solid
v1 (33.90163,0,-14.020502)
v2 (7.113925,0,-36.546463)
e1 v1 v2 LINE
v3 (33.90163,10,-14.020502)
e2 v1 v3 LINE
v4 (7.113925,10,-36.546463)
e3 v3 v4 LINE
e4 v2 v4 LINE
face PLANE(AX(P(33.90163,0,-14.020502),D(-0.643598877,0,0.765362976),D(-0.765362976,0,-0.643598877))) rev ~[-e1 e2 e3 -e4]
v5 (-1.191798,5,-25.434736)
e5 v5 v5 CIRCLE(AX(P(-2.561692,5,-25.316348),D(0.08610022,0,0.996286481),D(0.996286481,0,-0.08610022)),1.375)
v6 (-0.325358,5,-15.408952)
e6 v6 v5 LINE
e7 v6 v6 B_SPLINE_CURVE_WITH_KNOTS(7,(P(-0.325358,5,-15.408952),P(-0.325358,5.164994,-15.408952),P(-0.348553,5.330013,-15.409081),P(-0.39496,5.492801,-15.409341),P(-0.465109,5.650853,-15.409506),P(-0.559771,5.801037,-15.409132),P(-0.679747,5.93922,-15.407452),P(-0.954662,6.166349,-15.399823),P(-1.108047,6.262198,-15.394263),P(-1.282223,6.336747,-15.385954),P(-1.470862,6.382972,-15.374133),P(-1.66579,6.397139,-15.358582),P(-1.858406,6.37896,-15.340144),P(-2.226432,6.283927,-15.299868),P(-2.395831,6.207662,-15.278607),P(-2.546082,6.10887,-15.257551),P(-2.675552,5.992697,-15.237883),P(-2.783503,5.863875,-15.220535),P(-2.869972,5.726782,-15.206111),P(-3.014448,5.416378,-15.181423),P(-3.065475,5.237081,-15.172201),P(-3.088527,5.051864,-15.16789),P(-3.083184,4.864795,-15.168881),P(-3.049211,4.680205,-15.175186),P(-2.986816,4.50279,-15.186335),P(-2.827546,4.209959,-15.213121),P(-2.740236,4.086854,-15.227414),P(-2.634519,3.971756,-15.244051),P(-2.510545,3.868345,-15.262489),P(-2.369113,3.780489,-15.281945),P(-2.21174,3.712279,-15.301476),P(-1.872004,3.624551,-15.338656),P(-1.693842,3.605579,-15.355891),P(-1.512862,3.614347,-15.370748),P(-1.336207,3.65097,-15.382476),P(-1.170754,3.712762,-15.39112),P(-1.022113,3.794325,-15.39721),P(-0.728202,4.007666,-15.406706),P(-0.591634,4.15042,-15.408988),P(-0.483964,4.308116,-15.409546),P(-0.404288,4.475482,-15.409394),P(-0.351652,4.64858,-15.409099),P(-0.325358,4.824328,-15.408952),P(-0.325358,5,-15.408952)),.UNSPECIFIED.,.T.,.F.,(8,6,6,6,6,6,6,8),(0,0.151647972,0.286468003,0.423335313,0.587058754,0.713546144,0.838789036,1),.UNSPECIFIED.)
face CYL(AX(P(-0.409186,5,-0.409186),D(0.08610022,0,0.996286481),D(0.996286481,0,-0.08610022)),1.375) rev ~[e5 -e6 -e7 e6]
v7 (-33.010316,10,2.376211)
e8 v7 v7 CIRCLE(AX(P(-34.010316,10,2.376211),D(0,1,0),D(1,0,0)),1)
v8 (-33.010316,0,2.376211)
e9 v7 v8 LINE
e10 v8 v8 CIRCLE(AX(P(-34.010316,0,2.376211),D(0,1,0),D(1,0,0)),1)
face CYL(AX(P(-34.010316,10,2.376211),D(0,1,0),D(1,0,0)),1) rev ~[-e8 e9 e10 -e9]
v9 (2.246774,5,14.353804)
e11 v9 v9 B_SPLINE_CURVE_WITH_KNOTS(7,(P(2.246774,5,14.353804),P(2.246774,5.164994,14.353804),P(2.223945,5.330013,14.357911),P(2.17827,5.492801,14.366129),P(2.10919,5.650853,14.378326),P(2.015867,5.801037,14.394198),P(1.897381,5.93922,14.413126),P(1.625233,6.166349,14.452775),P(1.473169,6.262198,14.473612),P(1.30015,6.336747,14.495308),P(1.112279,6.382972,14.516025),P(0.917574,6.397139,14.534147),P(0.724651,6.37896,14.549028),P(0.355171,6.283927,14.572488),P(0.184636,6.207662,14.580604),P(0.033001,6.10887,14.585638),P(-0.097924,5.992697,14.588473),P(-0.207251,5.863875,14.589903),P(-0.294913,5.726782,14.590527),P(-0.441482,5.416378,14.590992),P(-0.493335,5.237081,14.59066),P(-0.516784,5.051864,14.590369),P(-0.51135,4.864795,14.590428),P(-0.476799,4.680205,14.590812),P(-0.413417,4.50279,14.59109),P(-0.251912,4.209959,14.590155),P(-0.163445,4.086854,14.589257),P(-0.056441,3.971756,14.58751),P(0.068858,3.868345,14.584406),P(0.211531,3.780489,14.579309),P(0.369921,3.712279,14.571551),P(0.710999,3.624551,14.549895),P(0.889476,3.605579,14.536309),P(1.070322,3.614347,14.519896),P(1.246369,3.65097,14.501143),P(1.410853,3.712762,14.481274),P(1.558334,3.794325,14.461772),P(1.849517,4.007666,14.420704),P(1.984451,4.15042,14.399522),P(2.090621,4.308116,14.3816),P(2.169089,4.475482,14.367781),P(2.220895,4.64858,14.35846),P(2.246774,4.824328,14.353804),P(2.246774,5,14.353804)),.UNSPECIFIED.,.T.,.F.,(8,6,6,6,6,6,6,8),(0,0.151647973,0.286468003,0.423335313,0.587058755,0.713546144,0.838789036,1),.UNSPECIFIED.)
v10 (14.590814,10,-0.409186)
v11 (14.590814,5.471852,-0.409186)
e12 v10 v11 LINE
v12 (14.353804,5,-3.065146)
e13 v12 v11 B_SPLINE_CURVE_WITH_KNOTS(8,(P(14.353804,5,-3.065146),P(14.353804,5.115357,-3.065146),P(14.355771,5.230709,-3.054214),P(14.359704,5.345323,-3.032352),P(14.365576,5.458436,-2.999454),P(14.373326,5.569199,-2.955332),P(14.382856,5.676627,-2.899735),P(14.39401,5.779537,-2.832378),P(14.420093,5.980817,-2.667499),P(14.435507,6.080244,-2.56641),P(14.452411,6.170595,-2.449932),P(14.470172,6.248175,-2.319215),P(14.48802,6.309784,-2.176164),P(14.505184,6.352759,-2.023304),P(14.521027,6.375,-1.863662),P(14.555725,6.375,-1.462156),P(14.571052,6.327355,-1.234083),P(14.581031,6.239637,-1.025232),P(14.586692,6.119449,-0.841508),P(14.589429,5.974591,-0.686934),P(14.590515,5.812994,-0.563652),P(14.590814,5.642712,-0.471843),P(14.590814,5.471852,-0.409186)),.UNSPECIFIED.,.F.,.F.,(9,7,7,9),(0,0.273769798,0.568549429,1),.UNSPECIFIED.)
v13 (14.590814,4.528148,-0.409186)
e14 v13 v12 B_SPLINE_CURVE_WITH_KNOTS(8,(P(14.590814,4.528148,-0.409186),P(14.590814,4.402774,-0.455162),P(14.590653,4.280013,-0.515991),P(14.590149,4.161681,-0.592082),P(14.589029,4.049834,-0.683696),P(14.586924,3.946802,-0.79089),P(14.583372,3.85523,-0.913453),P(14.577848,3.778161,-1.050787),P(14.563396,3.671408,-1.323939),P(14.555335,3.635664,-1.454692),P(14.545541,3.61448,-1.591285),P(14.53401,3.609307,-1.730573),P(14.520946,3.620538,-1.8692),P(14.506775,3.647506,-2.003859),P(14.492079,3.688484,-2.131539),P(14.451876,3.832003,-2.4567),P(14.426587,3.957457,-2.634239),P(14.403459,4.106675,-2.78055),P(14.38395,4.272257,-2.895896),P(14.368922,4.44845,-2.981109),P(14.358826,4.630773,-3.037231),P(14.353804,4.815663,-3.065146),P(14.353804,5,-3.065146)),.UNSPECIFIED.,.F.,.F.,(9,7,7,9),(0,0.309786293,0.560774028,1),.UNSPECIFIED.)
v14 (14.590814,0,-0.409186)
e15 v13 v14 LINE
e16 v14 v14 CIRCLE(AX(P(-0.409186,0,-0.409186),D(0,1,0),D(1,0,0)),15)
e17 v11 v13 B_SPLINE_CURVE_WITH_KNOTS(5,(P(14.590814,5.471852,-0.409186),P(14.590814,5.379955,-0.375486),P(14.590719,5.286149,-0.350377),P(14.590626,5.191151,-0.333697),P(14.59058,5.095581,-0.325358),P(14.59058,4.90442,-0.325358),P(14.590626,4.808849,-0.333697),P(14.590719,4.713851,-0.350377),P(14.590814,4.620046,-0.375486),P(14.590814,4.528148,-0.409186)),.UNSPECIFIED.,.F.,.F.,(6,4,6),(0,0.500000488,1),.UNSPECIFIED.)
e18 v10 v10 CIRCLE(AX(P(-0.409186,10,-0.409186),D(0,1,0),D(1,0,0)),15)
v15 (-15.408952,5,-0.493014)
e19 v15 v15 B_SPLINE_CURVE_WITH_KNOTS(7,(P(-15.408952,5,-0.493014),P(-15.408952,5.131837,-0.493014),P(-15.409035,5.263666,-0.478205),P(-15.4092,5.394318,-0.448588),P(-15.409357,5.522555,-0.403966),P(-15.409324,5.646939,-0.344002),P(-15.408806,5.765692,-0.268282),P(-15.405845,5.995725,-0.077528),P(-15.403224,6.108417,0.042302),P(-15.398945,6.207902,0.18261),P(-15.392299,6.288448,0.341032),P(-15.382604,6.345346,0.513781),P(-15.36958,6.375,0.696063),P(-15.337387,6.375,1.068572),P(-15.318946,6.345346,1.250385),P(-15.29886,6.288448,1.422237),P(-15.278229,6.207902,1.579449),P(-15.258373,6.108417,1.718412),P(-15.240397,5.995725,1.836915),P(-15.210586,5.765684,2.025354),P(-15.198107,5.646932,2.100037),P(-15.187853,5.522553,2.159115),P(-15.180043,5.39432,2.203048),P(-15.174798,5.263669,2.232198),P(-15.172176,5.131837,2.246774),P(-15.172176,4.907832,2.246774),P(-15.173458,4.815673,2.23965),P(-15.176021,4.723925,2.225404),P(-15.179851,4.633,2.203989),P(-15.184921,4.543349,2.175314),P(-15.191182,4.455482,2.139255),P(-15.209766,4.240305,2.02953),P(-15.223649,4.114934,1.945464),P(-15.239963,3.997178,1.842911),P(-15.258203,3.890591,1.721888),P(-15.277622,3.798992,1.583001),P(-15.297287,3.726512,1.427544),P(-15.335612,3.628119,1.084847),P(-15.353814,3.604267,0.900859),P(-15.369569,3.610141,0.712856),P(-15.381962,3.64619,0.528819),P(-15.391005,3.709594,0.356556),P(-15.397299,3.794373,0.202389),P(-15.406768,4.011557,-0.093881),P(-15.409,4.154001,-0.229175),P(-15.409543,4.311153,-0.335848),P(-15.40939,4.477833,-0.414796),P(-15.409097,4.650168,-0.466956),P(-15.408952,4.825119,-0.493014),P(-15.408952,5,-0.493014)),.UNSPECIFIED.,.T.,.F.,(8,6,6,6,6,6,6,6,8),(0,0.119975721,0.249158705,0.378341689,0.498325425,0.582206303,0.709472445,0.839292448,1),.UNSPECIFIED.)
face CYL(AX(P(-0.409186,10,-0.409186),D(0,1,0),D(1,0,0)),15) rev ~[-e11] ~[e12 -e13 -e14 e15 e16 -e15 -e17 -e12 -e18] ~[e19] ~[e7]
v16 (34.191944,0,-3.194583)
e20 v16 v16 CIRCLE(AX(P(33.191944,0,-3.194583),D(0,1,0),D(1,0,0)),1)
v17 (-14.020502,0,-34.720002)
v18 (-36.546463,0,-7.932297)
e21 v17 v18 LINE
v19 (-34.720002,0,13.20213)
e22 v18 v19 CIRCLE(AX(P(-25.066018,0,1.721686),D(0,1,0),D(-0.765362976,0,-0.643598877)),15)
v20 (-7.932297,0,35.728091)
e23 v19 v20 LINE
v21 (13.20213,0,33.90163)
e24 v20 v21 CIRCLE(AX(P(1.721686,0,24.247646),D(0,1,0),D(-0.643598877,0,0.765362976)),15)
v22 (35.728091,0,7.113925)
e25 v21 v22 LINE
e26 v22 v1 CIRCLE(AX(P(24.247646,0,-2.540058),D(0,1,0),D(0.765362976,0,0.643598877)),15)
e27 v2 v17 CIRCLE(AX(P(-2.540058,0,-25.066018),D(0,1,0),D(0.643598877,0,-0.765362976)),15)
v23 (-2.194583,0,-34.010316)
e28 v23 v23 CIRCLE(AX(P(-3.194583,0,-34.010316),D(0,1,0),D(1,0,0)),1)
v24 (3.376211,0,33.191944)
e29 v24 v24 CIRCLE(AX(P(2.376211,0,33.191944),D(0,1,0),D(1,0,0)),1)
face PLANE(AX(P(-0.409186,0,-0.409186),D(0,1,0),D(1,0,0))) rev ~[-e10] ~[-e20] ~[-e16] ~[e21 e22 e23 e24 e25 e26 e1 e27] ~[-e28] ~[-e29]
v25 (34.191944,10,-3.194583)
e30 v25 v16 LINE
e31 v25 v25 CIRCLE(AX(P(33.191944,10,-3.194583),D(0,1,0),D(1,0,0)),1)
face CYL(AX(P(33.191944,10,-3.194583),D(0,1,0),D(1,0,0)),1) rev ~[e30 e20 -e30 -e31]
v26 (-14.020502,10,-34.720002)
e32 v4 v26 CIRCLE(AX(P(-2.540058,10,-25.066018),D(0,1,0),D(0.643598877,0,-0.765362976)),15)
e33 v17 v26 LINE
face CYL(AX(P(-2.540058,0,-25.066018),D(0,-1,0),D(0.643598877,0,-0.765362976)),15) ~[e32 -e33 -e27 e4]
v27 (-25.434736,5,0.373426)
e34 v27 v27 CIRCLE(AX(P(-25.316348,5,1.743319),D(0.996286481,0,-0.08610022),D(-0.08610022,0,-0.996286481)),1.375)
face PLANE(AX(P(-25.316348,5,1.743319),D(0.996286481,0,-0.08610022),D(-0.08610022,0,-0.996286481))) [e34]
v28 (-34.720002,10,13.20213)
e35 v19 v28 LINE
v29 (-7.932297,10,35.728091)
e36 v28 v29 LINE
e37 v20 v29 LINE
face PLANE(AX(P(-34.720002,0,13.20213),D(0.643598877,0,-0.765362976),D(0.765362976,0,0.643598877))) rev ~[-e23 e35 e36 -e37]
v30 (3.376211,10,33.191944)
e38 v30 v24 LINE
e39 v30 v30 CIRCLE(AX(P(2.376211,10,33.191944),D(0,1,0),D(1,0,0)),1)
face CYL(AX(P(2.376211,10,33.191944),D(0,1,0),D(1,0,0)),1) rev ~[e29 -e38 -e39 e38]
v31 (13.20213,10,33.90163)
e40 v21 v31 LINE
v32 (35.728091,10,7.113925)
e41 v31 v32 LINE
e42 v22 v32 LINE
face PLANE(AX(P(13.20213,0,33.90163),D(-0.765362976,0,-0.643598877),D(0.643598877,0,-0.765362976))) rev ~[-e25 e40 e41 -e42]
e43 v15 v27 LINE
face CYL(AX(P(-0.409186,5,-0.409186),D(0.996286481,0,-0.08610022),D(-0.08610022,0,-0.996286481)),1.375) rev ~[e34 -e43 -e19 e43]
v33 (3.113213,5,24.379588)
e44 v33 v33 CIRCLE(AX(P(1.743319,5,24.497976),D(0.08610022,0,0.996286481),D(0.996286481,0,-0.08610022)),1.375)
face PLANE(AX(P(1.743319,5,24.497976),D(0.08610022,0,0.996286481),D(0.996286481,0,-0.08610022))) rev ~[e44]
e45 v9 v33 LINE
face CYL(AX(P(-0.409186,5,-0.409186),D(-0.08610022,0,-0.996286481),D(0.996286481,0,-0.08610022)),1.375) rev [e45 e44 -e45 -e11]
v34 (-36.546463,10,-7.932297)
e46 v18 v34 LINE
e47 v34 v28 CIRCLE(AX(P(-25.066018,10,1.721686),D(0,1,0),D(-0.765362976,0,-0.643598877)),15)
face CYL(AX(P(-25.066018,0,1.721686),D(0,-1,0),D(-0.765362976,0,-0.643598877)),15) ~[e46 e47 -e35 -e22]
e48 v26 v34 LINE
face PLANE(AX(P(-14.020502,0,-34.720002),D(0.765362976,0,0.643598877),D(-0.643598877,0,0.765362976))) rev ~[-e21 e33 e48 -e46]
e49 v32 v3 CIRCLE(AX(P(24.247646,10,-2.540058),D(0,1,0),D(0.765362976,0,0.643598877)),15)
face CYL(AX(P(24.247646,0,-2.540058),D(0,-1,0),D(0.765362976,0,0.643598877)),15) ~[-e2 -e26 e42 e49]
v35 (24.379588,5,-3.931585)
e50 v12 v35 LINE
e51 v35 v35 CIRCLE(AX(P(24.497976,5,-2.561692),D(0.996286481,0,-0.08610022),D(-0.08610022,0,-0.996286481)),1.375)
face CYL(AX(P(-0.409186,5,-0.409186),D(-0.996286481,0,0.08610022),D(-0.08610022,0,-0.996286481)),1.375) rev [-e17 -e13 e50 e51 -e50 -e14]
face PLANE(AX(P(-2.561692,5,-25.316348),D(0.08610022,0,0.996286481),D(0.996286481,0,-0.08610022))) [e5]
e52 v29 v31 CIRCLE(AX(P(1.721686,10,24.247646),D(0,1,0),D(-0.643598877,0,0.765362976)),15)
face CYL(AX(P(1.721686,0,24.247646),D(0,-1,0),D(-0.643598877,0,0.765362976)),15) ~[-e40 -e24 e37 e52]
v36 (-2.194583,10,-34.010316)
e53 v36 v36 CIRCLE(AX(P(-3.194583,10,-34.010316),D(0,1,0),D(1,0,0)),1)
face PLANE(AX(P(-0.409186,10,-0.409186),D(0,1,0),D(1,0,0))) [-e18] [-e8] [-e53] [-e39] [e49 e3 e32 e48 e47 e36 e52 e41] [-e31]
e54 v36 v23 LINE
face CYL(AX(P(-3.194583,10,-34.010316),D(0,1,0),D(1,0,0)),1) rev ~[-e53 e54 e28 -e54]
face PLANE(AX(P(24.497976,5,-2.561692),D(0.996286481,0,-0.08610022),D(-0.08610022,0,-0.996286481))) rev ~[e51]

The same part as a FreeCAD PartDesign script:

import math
import FreeCAD as App
import Part
import Sketcher
Q = App.Units.Quantity

doc = App.newDocument("Part")
body = doc.addObject("PartDesign::Body", "Body")

# Sketch on XZ plane
sketch1 = body.newObject("Sketcher::SketchObject", "Sketch")
sketch1.AttachmentSupport = (doc.getObject("XZ_Plane"), [""])
sketch1.MapMode = "FlatFace"
sketch1.addGeometry([
    Part.LineSegment(App.Vector(33.90163, -14.020502, 0), App.Vector(7.113925, -36.546463, 0)),  # 0
    Part.ArcOfCircle(Part.Circle(App.Vector(-2.540058, -25.066018, 0), App.Vector(0, 0, 1), 15), math.radians(-139.939295), math.radians(-49.939295)),  # 1
    Part.LineSegment(App.Vector(-14.020502, -34.720002, 0), App.Vector(-36.546463, -7.932297, 0)),  # 2
    Part.ArcOfCircle(Part.Circle(App.Vector(-25.066018, 1.721686, 0), App.Vector(0, 0, 1), 15), math.radians(130.060705), math.radians(220.060705)),  # 3
    Part.LineSegment(App.Vector(-34.720002, 13.20213, 0), App.Vector(-7.932297, 35.728091, 0)),  # 4
    Part.ArcOfCircle(Part.Circle(App.Vector(1.721686, 24.247646, 0), App.Vector(0, 0, 1), 15), math.radians(40.060705), math.radians(130.060705)),  # 5
    Part.LineSegment(App.Vector(13.20213, 33.90163, 0), App.Vector(35.728091, 7.113925, 0)),  # 6
    Part.ArcOfCircle(Part.Circle(App.Vector(24.247646, -2.540058, 0), App.Vector(0, 0, 1), 15), math.radians(-49.939295), math.radians(40.060705)),  # 7
    Part.Circle(App.Vector(-0.409186, -0.409186, 0), App.Vector(0, 0, 1), 16.2),  # 8
], False)
sketch1.addConstraint([
    Sketcher.Constraint("Tangent", 0, 2, 1, 2),
    Sketcher.Constraint("Tangent", 1, 1, 2, 1),
    Sketcher.Constraint("Tangent", 2, 2, 3, 2),
    Sketcher.Constraint("Tangent", 3, 1, 4, 1),
    Sketcher.Constraint("Tangent", 4, 2, 5, 2),
    Sketcher.Constraint("Tangent", 5, 1, 6, 1),
    Sketcher.Constraint("Tangent", 6, 2, 7, 2),
    Sketcher.Constraint("Tangent", 7, 1, 0, 1),
    Sketcher.Constraint("Equal", 1, 3),
    Sketcher.Constraint("Equal", 3, 5),
    Sketcher.Constraint("Equal", 5, 7),
    Sketcher.Constraint("Perpendicular", 0, 2),
    Sketcher.Constraint("Perpendicular", 2, 4),
    Sketcher.Constraint("Perpendicular", 4, 6),
    Sketcher.Constraint("Equal", 0, 2),
    Sketcher.Constraint("Radius", 1, Q("15 mm")),
    Sketcher.Constraint("Diameter", 8, Q("32.4 mm")),
    Sketcher.Constraint("Distance", 0, Q("35 mm")),
    Sketcher.Constraint("DistanceY", 1, 1, -1, 1, Q("34.720002 mm")),
    Sketcher.Constraint("DistanceX", 3, 1, -1, 1, Q("34.720002 mm")),
    Sketcher.Constraint("DistanceY", 1, 3, -1, 1, Q("25.066018 mm")),
    Sketcher.Constraint("DistanceX", 1, 3, 8, 3, Q("2.130872 mm")),
    Sketcher.Constraint("DistanceY", 8, 3, 3, 3, Q("2.130872 mm")),
])
pad1 = body.newObject("PartDesign::Pad", "Pad")
pad1.Profile = sketch1
pad1.Length = 10
pad1.Reversed = True

# Sketch on XZ plane
sketch2 = body.newObject("Sketcher::SketchObject", "Sketch001")
sketch2.AttachmentSupport = (doc.getObject("XZ_Plane"), [""])
sketch2.MapMode = "FlatFace"
sketch2.AttachmentOffset = App.Placement(App.Vector(0, 0, -10), App.Rotation())
sketch2.addGeometry([
    Part.Circle(App.Vector(-0.409186, -0.409186, 0), App.Vector(0, 0, 1), 16.2),  # 0
    Part.Circle(App.Vector(-34.010316, 2.376211, 0), App.Vector(0, 0, 1), 1),  # 1
    Part.Circle(App.Vector(-3.194583, -34.010316, 0), App.Vector(0, 0, 1), 1),  # 2
    Part.Circle(App.Vector(33.191944, -3.194583, 0), App.Vector(0, 0, 1), 1),  # 3
    Part.Circle(App.Vector(2.376211, 33.191944, 0), App.Vector(0, 0, 1), 1),  # 4
], False)
sketch2.addConstraint([
    Sketcher.Constraint("Equal", 1, 2),
    Sketcher.Constraint("Equal", 2, 3),
    Sketcher.Constraint("Equal", 3, 4),
    Sketcher.Constraint("Diameter", 1, Q("2 mm")),
    Sketcher.Constraint("Diameter", 0, Q("32.4 mm")),
    Sketcher.Constraint("DistanceY", -1, 1, 1, 3, Q("2.376211 mm")),
    Sketcher.Constraint("DistanceX", -1, 1, 4, 3, Q("2.376211 mm")),
    Sketcher.Constraint("DistanceX", 1, 3, 0, 3, Q("33.60113 mm")),
    Sketcher.Constraint("DistanceY", 2, 3, 0, 3, Q("33.60113 mm")),
    Sketcher.Constraint("DistanceX", 0, 3, 3, 3, Q("33.60113 mm")),
    Sketcher.Constraint("DistanceY", 0, 3, 4, 3, Q("33.60113 mm")),
    Sketcher.Constraint("DistanceX", 0, 3, -1, 1, Q("0.409186 mm")),
    Sketcher.Constraint("DistanceY", 0, 3, -1, 1, Q("0.409186 mm")),
    Sketcher.Constraint("DistanceX", 2, 3, -1, 1, Q("3.194583 mm")),
    Sketcher.Constraint("DistanceY", 3, 3, -1, 1, Q("3.194583 mm")),
])
pocket1 = body.newObject("PartDesign::Pocket", "Pocket")
pocket1.Profile = sketch2
pocket1.Length = 10
pocket1.Reversed = True

# Sketch on XZ plane
sketch3 = body.newObject("Sketcher::SketchObject", "Sketch002")
sketch3.AttachmentSupport = (doc.getObject("XZ_Plane"), [""])
sketch3.MapMode = "FlatFace"
sketch3.AttachmentOffset = App.Placement(App.Vector(0, 0, -10), App.Rotation())
sketch3.addGeometry([
    Part.Circle(App.Vector(-0.409186, -0.409186, 0), App.Vector(0, 0, 1), 16.2),
    Part.Circle(App.Vector(-0.409186, -0.409186, 0), App.Vector(0, 0, 1), 15),
], False)
sketch3.addConstraint([
    Sketcher.Constraint("Coincident", 1, 3, 0, 3),
    Sketcher.Constraint("Diameter", 1, Q("30 mm")),
    Sketcher.Constraint("Diameter", 0, Q("32.4 mm")),
    Sketcher.Constraint("DistanceX", 0, 3, -1, 1, Q("0.409186 mm")),
    Sketcher.Constraint("DistanceY", 0, 3, -1, 1, Q("0.409186 mm")),
])
pad2 = body.newObject("PartDesign::Pad", "Pad001")
pad2.Profile = sketch3
pad2.Length = 10

# Sketch on an angled plane
sketch4 = body.newObject("Sketcher::SketchObject", "Sketch003")
sketch4.Placement = App.Placement(App.Vector(-0.371052, 0, 0.032067), App.Rotation(App.Vector(-0.08610022, 0, -0.996286481), App.Vector(0, 1, 0), App.Vector(0.996286481, 0, -0.08610022), "ZXY"))
sketch4.addGeometry(Part.Circle(App.Vector(0.442898, 5, 0), App.Vector(0, 0, 1), 1.375), False)
sketch4.addConstraint([
    Sketcher.Constraint("Diameter", 0, Q("2.75 mm")),
    Sketcher.Constraint("DistanceY", -1, 1, 0, 3, Q("5 mm")),
    Sketcher.Constraint("DistanceX", -1, 1, 0, 3, Q("0.442898 mm")),
])
pocket2 = body.newObject("PartDesign::Pocket", "Pocket001")
pocket2.Profile = sketch4
pocket2.Type = "TwoLengths"
pocket2.Length = 25
pocket2.Length2 = 25
pocket2.Reversed = True

# Sketch on an angled plane
sketch5 = body.newObject("Sketcher::SketchObject", "Sketch004")
sketch5.Placement = App.Placement(App.Vector(-0.038134, 0, -0.441253), App.Rotation(App.Vector(0.996286481, 0, -0.08610022), App.Vector(0, 1, 0), App.Vector(0.08610022, 0, 0.996286481), "ZXY"))
sketch5.addGeometry(Part.Circle(App.Vector(-0.372436, 5, 0), App.Vector(0, 0, 1), 1.375), False)
sketch5.addConstraint([
    Sketcher.Constraint("Diameter", 0, Q("2.75 mm")),
    Sketcher.Constraint("DistanceY", -1, 1, 0, 3, Q("5 mm")),
    Sketcher.Constraint("DistanceX", 0, 3, -1, 1, Q("0.372436 mm")),
])
pocket3 = body.newObject("PartDesign::Pocket", "Pocket002")
pocket3.Profile = sketch5
pocket3.Type = "TwoLengths"
pocket3.Length = 25
pocket3.Length2 = 25
pocket3.Reversed = True

doc.recompute()
